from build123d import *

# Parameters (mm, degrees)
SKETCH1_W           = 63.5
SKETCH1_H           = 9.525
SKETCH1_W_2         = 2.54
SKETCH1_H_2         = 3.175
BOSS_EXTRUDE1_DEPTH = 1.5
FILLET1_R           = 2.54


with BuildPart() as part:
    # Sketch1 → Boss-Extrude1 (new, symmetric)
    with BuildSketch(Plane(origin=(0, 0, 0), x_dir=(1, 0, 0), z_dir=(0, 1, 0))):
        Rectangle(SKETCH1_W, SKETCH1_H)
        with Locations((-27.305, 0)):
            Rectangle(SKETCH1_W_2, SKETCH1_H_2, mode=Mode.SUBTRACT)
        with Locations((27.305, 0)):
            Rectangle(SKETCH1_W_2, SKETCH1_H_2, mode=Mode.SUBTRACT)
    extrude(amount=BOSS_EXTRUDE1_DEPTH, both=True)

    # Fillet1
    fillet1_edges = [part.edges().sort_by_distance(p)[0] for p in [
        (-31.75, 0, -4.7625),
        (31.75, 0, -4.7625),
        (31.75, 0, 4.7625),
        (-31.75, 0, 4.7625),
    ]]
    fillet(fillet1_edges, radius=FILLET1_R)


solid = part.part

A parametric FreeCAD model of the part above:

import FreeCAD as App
import Part
import Sketcher

V = App.Vector
Q = App.Units.Quantity


def edges_at(feature, points):
    """Names of the edges that pass closest to the given points."""
    edges = feature.Shape.Edges
    near = lambda p: min(range(len(edges)), key=lambda i: edges[i].distToShape(Part.Vertex(*p))[0])
    return sorted({f"Edge{near(p) + 1}" for p in points})


def add_polygon(sketch, points):
    """Adds a closed chain of lines whose ends are joined by coincident constraints."""
    first, n = sketch.GeometryCount, len(points)
    for a, b in zip(points, points[1:] + points[:1]):
        sketch.addGeometry(Part.LineSegment(App.Vector(*a, 0), App.Vector(*b, 0)), False)
    for i in range(n):
        sketch.addConstraint(Sketcher.Constraint("Coincident", first + i, 2, first + (i + 1) % n, 1))

doc = App.newDocument("Part")
params = doc.addObject("Spreadsheet::Sheet", "Params")
for row, (alias, value) in enumerate([
    ("sketch1_width", "2.5 in"),
    ("sketch1_width2", "0.1 in"),
    ("sketch1_height", "0.375 in"),
    ("sketch1_height2", "0.125 in"),
    ("pad1_length", "3 mm"),
    ("fillet_radius", "0.1 in"),
], start=1):
    params.set(f"A{row}", alias)
    params.set(f"B{row}", "=" + value)
    params.setAlias(f"B{row}", alias)

body = doc.addObject("PartDesign::Body", "Body")

# Sketch on XZ plane
sketch1 = body.newObject("Sketcher::SketchObject", "Sketch")
sketch1.AttachmentSupport = (doc.getObject("XZ_Plane"), [""])
sketch1.MapMode = "FlatFace"
add_polygon(sketch1, [(-31.75, -4.7625), (-31.75, 4.7625), (31.75, 4.7625), (31.75, -4.7625)])  # lines 0-3
add_polygon(sketch1, [(-26.035, 1.5875), (-28.575, 1.5875), (-28.575, -1.5875), (-26.035, -1.5875)])  # lines 4-7
add_polygon(sketch1, [(28.575, 1.5875), (26.035, 1.5875), (26.035, -1.5875), (28.575, -1.5875)])  # lines 8-11
sketch1.addConstraint(Sketcher.Constraint("Vertical", 0))
sketch1.addConstraint(Sketcher.Constraint("Horizontal", 1))
sketch1.addConstraint(Sketcher.Constraint("Vertical", 2))
sketch1.addConstraint(Sketcher.Constraint("Horizontal", 3))
sketch1.addConstraint(Sketcher.Constraint("Horizontal", 4))
sketch1.addConstraint(Sketcher.Constraint("Vertical", 5))
sketch1.addConstraint(Sketcher.Constraint("Horizontal", 6))
sketch1.addConstraint(Sketcher.Constraint("Vertical", 7))
sketch1.addConstraint(Sketcher.Constraint("Horizontal", 8))
sketch1.addConstraint(Sketcher.Constraint("Vertical", 9))
sketch1.addConstraint(Sketcher.Constraint("Horizontal", 10))
sketch1.addConstraint(Sketcher.Constraint("Vertical", 11))
sketch1.addConstraint(Sketcher.Constraint("Symmetric", 0, 2, 2, 2, -1, 1))
sketch1.addConstraint(Sketcher.Constraint("Symmetric", 6, 2, 8, 2, -1, 1))
sketch1.addConstraint(Sketcher.Constraint("Symmetric", 4, 2, 10, 2, -1, 1))
sketch1.addConstraint(Sketcher.Constraint("Horizontal", 7, 2, 8, 2))
sketch1.addConstraint(Sketcher.Constraint("DistanceX", 1, 1, 1, 2, Q("2.5 in")))
sketch1.addConstraint(Sketcher.Constraint("DistanceX", 4, 2, 4, 1, Q("0.1 in")))
sketch1.addConstraint(Sketcher.Constraint("DistanceY", 0, 1, 0, 2, Q("0.375 in")))
sketch1.addConstraint(Sketcher.Constraint("DistanceY", 5, 2, 5, 1, Q("0.125 in")))
sketch1.addConstraint(Sketcher.Constraint("DistanceX", 7, 2, 8, 2, Q("2.05 in")))
sketch1.setExpression("Constraints[28]", "Params.sketch1_width")
sketch1.setExpression("Constraints[29]", "Params.sketch1_width2")
sketch1.setExpression("Constraints[30]", "Params.sketch1_height")
sketch1.setExpression("Constraints[31]", "Params.sketch1_height2")
pad1 = body.newObject("PartDesign::Pad", "Pad")
pad1.Profile = sketch1
pad1.setExpression("Length", "Params.pad1_length")
pad1.Midplane = True
doc.recompute()

fillet = body.newObject("PartDesign::Fillet", "Fillet")
fillet.Base = (pad1, edges_at(pad1, [
    (-31.75, 0, -4.763),
    (31.75, 0, -4.763),
    (31.75, 0, 4.763),
    (-31.75, 0, 4.763),
]))
fillet.setExpression("Radius", "Params.fillet_radius")

doc.recompute()
